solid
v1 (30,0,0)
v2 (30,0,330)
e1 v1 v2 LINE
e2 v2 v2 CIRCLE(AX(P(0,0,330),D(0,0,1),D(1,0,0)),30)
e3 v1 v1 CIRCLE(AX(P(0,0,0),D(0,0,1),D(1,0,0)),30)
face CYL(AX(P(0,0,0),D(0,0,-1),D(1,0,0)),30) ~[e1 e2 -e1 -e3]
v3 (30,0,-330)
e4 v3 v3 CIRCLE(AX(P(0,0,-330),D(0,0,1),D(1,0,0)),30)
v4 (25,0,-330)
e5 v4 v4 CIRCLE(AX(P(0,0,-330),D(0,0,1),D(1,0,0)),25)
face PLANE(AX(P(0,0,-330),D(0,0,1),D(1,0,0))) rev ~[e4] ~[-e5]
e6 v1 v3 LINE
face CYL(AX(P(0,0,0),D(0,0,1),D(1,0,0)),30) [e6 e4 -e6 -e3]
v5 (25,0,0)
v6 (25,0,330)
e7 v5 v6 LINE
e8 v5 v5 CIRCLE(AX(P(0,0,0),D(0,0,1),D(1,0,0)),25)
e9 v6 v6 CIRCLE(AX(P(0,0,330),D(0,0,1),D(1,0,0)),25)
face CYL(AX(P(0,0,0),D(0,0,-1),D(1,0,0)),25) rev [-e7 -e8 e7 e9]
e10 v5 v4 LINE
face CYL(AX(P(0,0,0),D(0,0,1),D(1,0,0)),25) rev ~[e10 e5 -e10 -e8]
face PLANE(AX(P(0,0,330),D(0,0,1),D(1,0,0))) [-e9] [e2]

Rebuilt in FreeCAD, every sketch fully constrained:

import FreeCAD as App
import Part
import Sketcher
from FreeCAD import Vector
Q = App.Units.Quantity

doc = App.newDocument("Part")
body = doc.addObject("PartDesign::Body", "Body")

# Sketch on XY plane
sketch1 = body.newObject("Sketcher::SketchObject", "Sketch")
sketch1.AttachmentSupport = (doc.getObject("XY_Plane"), [""])
sketch1.MapMode = "FlatFace"
sketch1.addGeometry([
    Part.Circle(Vector(0, 0, 0), Vector(0, 0, 1), 30),
    Part.Circle(Vector(0, 0, 0), Vector(0, 0, 1), 25),
], False)
sketch1.addConstraint([
    Sketcher.Constraint("Coincident", 0, 3, -1, 1),
    Sketcher.Constraint("Coincident", 1, 3, -1, 1),
    Sketcher.Constraint("Diameter", 1, Q("50 mm")),
    Sketcher.Constraint("Diameter", 0, Q("60 mm")),
])
pad1 = body.newObject("PartDesign::Pad", "Pad")
pad1.Profile = sketch1
pad1.Length = 660
pad1.Midplane = True

doc.recompute()
